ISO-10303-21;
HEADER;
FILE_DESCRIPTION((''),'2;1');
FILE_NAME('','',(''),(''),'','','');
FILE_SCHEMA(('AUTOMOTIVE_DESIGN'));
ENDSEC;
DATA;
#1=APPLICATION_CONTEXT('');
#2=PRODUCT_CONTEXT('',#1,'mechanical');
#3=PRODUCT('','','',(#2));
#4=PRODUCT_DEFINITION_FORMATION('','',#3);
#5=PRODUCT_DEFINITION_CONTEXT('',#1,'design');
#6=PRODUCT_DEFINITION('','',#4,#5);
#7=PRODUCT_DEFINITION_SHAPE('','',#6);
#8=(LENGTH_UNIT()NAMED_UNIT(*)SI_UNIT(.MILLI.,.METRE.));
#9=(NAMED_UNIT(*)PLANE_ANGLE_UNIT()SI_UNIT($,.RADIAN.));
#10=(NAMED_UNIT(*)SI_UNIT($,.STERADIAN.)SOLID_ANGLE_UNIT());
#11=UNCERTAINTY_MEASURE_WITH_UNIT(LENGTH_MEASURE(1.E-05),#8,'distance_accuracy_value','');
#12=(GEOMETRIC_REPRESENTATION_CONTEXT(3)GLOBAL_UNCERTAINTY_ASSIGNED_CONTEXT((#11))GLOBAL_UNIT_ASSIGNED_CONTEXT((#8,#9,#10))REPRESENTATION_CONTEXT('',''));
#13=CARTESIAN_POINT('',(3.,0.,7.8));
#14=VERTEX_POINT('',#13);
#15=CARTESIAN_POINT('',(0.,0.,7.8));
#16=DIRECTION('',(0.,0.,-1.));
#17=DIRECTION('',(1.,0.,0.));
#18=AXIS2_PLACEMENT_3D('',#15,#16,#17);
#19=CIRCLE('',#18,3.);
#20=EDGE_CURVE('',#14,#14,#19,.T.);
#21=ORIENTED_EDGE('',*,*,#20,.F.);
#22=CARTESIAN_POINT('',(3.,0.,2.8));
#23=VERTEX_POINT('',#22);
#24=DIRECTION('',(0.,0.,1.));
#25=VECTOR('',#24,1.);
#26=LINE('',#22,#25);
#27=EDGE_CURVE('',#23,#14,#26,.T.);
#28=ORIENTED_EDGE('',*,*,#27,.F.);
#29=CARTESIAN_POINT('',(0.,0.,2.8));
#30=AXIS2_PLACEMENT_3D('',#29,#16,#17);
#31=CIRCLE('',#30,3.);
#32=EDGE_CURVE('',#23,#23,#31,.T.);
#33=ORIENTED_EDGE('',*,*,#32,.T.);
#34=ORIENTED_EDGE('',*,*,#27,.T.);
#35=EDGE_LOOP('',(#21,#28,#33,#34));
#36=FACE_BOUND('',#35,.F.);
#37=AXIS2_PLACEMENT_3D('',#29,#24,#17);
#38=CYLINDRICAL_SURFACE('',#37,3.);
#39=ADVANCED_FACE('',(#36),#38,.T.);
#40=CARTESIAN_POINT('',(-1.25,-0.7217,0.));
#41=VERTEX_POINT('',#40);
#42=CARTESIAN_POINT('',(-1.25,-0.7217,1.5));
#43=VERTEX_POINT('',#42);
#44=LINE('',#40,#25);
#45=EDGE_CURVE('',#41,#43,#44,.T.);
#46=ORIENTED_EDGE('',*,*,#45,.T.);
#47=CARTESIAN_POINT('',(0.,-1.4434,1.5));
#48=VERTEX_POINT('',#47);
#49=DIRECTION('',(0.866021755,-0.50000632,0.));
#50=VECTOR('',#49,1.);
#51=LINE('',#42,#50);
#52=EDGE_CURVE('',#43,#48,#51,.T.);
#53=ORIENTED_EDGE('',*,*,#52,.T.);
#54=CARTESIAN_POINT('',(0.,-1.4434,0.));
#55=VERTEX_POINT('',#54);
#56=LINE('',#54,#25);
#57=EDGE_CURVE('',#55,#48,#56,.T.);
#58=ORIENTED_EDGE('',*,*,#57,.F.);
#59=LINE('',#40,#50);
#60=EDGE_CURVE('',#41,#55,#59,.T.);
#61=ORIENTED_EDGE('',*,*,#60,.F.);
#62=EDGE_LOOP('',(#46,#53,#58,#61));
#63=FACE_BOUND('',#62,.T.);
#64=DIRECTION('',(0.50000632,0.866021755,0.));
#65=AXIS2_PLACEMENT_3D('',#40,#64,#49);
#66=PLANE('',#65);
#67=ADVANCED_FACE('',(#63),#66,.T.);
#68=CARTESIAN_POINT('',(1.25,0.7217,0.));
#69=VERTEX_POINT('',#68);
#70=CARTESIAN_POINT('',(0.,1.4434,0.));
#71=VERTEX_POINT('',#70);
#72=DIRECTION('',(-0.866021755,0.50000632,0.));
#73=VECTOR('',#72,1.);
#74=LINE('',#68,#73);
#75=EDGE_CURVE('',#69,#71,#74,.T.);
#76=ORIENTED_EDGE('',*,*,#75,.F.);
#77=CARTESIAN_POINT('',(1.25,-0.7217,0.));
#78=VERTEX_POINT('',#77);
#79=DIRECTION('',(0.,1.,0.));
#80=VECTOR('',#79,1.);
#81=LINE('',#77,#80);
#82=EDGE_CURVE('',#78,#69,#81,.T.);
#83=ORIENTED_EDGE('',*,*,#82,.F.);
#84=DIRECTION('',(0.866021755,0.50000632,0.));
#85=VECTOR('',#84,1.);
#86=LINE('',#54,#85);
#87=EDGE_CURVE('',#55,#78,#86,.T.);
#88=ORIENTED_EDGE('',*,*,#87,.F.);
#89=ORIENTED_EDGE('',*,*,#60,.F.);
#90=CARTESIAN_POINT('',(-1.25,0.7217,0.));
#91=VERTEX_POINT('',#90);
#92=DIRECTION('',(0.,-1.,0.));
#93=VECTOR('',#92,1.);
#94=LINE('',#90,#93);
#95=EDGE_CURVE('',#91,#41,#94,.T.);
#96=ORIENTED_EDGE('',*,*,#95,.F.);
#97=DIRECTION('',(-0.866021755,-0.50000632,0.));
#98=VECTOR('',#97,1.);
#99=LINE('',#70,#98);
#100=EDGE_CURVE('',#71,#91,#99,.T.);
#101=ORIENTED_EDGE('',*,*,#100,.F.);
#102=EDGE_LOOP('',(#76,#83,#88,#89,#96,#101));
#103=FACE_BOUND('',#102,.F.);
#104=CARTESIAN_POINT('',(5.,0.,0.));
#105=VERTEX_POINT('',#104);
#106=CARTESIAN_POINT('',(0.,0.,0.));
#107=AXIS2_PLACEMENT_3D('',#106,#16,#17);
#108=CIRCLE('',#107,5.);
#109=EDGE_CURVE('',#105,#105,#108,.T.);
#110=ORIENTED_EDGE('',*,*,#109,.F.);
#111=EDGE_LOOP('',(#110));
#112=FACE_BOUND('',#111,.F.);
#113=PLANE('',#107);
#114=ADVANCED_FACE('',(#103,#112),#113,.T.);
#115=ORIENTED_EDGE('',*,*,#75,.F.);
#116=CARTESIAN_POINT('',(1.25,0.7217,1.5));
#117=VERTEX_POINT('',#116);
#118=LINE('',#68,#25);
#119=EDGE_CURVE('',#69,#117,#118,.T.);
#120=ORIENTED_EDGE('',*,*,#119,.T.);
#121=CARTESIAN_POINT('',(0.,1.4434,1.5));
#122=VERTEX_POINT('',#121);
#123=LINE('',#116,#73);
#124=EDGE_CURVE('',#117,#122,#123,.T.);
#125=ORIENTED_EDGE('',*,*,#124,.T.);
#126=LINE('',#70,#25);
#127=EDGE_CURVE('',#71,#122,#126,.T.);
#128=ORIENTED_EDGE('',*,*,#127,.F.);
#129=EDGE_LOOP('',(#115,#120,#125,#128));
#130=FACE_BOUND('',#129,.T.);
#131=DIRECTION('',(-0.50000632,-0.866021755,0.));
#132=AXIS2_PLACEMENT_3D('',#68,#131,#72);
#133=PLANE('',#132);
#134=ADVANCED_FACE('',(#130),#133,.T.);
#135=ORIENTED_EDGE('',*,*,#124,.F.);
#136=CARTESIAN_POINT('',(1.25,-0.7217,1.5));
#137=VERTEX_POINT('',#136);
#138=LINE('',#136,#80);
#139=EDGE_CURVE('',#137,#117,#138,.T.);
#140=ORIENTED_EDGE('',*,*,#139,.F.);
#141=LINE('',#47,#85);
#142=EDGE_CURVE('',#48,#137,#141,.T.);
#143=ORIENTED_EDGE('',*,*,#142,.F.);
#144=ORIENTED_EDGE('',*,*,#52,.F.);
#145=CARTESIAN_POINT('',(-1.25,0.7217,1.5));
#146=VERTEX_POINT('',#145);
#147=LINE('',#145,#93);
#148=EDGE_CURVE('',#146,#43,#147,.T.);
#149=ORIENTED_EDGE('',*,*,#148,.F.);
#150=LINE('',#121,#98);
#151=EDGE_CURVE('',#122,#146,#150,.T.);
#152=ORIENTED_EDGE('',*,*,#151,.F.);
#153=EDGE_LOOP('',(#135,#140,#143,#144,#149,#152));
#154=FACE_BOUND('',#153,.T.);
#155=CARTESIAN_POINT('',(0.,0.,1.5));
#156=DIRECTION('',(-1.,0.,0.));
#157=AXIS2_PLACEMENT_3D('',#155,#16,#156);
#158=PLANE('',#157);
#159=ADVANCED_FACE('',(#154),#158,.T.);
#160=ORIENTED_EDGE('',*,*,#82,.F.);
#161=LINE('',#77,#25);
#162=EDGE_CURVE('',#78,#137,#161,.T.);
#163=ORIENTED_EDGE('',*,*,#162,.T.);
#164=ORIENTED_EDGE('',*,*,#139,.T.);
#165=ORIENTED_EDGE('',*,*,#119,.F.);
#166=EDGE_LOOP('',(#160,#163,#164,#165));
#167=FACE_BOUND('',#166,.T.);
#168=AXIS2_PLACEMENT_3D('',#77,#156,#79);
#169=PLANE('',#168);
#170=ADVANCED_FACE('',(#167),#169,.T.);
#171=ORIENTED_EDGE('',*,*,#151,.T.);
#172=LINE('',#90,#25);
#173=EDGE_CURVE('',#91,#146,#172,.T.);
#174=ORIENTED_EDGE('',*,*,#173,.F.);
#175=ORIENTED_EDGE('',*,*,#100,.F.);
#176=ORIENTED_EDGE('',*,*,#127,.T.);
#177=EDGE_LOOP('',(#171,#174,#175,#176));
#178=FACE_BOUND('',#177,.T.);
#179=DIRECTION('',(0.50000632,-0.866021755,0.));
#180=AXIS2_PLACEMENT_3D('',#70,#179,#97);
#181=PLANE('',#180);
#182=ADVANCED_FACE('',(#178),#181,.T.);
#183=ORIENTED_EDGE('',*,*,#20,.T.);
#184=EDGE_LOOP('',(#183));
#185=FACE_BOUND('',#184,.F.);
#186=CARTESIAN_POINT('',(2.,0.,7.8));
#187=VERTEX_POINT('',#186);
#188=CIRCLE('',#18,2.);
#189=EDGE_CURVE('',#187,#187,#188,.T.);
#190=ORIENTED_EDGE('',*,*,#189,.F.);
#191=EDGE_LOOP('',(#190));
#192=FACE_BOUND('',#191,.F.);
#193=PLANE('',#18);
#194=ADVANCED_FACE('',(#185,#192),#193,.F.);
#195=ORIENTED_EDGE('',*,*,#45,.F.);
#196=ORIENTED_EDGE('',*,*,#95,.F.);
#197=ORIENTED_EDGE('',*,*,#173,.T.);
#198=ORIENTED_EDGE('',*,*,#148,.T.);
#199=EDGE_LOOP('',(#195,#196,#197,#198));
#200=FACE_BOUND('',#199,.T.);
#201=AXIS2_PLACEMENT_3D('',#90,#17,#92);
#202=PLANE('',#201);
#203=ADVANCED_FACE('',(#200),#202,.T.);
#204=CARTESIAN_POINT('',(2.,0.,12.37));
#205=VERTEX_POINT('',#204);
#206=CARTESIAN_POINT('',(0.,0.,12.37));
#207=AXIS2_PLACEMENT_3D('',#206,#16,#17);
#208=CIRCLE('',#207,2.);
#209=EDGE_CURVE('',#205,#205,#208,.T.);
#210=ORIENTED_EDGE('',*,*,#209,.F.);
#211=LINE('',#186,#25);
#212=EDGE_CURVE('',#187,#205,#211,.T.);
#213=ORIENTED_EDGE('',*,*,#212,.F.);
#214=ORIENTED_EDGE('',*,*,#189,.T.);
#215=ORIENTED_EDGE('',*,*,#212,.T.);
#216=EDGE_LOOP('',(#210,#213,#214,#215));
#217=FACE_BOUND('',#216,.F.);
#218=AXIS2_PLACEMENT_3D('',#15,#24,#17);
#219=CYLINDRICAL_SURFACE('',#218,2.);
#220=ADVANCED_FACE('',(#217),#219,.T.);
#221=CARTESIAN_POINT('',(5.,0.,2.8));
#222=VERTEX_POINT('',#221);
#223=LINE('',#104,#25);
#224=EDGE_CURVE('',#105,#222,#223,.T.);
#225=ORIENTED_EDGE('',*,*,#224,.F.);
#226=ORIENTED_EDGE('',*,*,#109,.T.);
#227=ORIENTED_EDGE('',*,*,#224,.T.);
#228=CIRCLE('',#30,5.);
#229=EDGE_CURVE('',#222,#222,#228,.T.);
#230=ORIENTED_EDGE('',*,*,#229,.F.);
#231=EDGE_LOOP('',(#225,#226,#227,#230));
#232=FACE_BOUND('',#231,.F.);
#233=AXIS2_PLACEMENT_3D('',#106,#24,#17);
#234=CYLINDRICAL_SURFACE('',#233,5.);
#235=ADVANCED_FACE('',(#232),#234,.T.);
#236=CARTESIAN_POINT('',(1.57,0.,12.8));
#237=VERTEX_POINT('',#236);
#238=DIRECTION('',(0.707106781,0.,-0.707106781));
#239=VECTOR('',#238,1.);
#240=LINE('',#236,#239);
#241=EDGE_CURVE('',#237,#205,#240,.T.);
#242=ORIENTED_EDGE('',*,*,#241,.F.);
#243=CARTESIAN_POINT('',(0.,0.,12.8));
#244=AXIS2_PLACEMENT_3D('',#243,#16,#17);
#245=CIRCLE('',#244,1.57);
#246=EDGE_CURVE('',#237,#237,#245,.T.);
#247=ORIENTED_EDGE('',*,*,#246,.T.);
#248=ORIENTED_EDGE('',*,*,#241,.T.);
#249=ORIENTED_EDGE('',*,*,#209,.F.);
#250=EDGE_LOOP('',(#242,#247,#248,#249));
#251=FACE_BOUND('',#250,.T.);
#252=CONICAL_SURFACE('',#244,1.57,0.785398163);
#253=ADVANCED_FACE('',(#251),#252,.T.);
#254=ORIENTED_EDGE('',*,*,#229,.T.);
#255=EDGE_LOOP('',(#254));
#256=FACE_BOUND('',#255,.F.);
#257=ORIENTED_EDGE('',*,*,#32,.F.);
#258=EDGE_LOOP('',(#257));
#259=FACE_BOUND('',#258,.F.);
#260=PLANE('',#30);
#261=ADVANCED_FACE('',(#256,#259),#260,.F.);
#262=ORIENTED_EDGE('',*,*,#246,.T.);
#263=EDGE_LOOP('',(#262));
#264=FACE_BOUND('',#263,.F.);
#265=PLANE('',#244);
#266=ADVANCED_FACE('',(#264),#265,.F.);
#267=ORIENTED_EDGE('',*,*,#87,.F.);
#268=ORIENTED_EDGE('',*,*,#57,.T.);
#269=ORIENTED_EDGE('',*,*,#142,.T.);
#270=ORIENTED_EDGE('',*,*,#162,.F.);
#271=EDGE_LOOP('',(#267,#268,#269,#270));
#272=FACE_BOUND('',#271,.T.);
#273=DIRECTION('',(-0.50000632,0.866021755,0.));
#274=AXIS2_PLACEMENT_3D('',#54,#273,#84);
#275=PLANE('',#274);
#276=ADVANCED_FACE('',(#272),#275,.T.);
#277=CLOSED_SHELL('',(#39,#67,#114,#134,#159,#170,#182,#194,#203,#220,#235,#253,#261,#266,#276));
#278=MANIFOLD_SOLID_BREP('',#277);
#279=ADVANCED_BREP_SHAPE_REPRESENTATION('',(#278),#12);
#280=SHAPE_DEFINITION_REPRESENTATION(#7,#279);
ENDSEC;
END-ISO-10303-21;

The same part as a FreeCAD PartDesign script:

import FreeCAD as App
import Part
import Sketcher
from FreeCAD import Vector
Q = App.Units.Quantity

doc = App.newDocument("Part")
params = doc.addObject("Spreadsheet::Sheet", "Params")
for row, (alias, value) in enumerate([
    ("sketch1_width", "5 mm"),
    ("sketch1_height", "2.8 mm"),
    ("sketch1_width2", "1 mm"),
    ("sketch1_width3", "2 mm"),
    ("revolution_angle", "360 deg"),
    ("pocket1_length", "1.5 mm"),
], start=1):
    params.set(f"A{row}", alias)
    params.set(f"B{row}", "=" + value)
    params.setAlias(f"B{row}", alias)

body = doc.addObject("PartDesign::Body", "Body")

sketch1 = body.newObject("Sketcher::SketchObject", "Sketch")
sketch1.AttachmentSupport = (doc.getObject("XZ_Plane"), [""])
sketch1.MapMode = "FlatFace"
sketch1.addGeometry(Part.LineSegment(Vector(5, 0, 0), Vector(0, 0, 0)), False)
sketch1.addGeometry(Part.LineSegment(Vector(0, 0, 0), Vector(0, 12.8, 0)), False)
sketch1.addGeometry(Part.LineSegment(Vector(0, 12.8, 0), Vector(1.57, 12.8, 0)), False)
sketch1.addGeometry(Part.LineSegment(Vector(1.57, 12.8, 0), Vector(2, 12.37, 0)), False)
sketch1.addGeometry(Part.LineSegment(Vector(2, 12.37, 0), Vector(2, 7.8, 0)), False)
sketch1.addGeometry(Part.LineSegment(Vector(2, 7.8, 0), Vector(3, 7.8, 0)), False)
sketch1.addGeometry(Part.LineSegment(Vector(3, 7.8, 0), Vector(3, 2.8, 0)), False)
sketch1.addGeometry(Part.LineSegment(Vector(3, 2.8, 0), Vector(5, 2.8, 0)), False)
sketch1.addGeometry(Part.LineSegment(Vector(5, 2.8, 0), Vector(5, 0, 0)), False)
sketch1.addConstraint(Sketcher.Constraint("Coincident", 0, 2, 1, 1))
sketch1.addConstraint(Sketcher.Constraint("Coincident", 1, 2, 2, 1))
sketch1.addConstraint(Sketcher.Constraint("Coincident", 2, 2, 3, 1))
sketch1.addConstraint(Sketcher.Constraint("Coincident", 3, 2, 4, 1))
sketch1.addConstraint(Sketcher.Constraint("Coincident", 4, 2, 5, 1))
sketch1.addConstraint(Sketcher.Constraint("Coincident", 5, 2, 6, 1))
sketch1.addConstraint(Sketcher.Constraint("Coincident", 6, 2, 7, 1))
sketch1.addConstraint(Sketcher.Constraint("Coincident", 7, 2, 8, 1))
sketch1.addConstraint(Sketcher.Constraint("Coincident", 8, 2, 0, 1))
sketch1.addConstraint(Sketcher.Constraint("Horizontal", 0))
sketch1.addConstraint(Sketcher.Constraint("Vertical", 1))
sketch1.addConstraint(Sketcher.Constraint("Horizontal", 2))
sketch1.addConstraint(Sketcher.Constraint("Vertical", 4))
sketch1.addConstraint(Sketcher.Constraint("Horizontal", 5))
sketch1.addConstraint(Sketcher.Constraint("Vertical", 6))
sketch1.addConstraint(Sketcher.Constraint("Horizontal", 7))
sketch1.addConstraint(Sketcher.Constraint("Vertical", 8))
sketch1.addConstraint(Sketcher.Constraint("Coincident", 0, 2, -1, 1))
sketch1.addConstraint(Sketcher.Constraint("Equal", 0, 6))
sketch1.addConstraint(Sketcher.Constraint("DistanceX", 0, 2, 0, 1, 5.0))
sketch1.addConstraint(Sketcher.Constraint("DistanceY", 8, 2, 8, 1, 2.8))
sketch1.addConstraint(Sketcher.Constraint("DistanceY", 4, 2, 2, 2, 5.0))
sketch1.addConstraint(Sketcher.Constraint("DistanceX", 5, 1, 5, 2, 1.0))
sketch1.addConstraint(Sketcher.Constraint("DistanceX", 7, 1, 7, 2, 2.0))
sketch1.addConstraint(Sketcher.Constraint("Angle", 3, Q("-45 deg")))
sketch1.addConstraint(Sketcher.Constraint("DistanceX", 2, 2, 3, 2, 0.43))
sketch1.setExpression("Constraints[19]", "Params.sketch1_width")
sketch1.setExpression("Constraints[20]", "Params.sketch1_height")
sketch1.setExpression("Constraints[22]", "Params.sketch1_width2")
sketch1.setExpression("Constraints[23]", "Params.sketch1_width3")
revolution = body.newObject("PartDesign::Revolution", "Revolution")
revolution.Profile = sketch1
revolution.ReferenceAxis = (sketch1, ["V_Axis"])
revolution.setExpression("Angle", "Params.revolution_angle")

sketch2 = body.newObject("Sketcher::SketchObject", "Sketch001")
sketch2.AttachmentSupport = (doc.getObject("XY_Plane"), [""])
sketch2.MapMode = "FlatFace"
sketch2.addGeometry(Part.LineSegment(Vector(1.25, -0.7217, 0), Vector(0, -1.4434, 0)), False)
sketch2.addGeometry(Part.LineSegment(Vector(0, -1.4434, 0), Vector(-1.25, -0.7217, 0)), False)
sketch2.addGeometry(Part.LineSegment(Vector(-1.25, -0.7217, 0), Vector(-1.25, 0.7217, 0)), False)
sketch2.addGeometry(Part.LineSegment(Vector(-1.25, 0.7217, 0), Vector(0, 1.4434, 0)), False)
sketch2.addGeometry(Part.LineSegment(Vector(0, 1.4434, 0), Vector(1.25, 0.7217, 0)), False)
sketch2.addGeometry(Part.LineSegment(Vector(1.25, 0.7217, 0), Vector(1.25, -0.7217, 0)), False)
sketch2.addConstraint(Sketcher.Constraint("Coincident", 0, 2, 1, 1))
sketch2.addConstraint(Sketcher.Constraint("Coincident", 1, 2, 2, 1))
sketch2.addConstraint(Sketcher.Constraint("Coincident", 2, 2, 3, 1))
sketch2.addConstraint(Sketcher.Constraint("Coincident", 3, 2, 4, 1))
sketch2.addConstraint(Sketcher.Constraint("Coincident", 4, 2, 5, 1))
sketch2.addConstraint(Sketcher.Constraint("Coincident", 5, 2, 0, 1))
sketch2.addConstraint(Sketcher.Constraint("Vertical", 2))
sketch2.addConstraint(Sketcher.Constraint("Vertical", 5))
sketch2.addConstraint(Sketcher.Constraint("Symmetric", 0, 2, 3, 2, -1, 1))
sketch2.addConstraint(Sketcher.Constraint("Symmetric", 1, 2, 4, 2, -1, 1))
sketch2.addConstraint(Sketcher.Constraint("PointOnObject", 0, 2, -2))
sketch2.addConstraint(Sketcher.Constraint("Parallel", 0, 3))
sketch2.addConstraint(Sketcher.Constraint("Horizontal", 2, 2, 4, 2))
sketch2.addConstraint(Sketcher.Constraint("DistanceX", 2, 2, 4, 2, 2.5))
sketch2.addConstraint(Sketcher.Constraint("Angle", 0, Q("-149.9996 deg")))
sketch2.addConstraint(Sketcher.Constraint("DistanceY", 2, 1, 2, 2, 1.4434))
pocket1 = body.newObject("PartDesign::Pocket", "Pocket")
pocket1.Profile = sketch2
pocket1.setExpression("Length", "Params.pocket1_length")
pocket1.Reversed = True

doc.recompute()
